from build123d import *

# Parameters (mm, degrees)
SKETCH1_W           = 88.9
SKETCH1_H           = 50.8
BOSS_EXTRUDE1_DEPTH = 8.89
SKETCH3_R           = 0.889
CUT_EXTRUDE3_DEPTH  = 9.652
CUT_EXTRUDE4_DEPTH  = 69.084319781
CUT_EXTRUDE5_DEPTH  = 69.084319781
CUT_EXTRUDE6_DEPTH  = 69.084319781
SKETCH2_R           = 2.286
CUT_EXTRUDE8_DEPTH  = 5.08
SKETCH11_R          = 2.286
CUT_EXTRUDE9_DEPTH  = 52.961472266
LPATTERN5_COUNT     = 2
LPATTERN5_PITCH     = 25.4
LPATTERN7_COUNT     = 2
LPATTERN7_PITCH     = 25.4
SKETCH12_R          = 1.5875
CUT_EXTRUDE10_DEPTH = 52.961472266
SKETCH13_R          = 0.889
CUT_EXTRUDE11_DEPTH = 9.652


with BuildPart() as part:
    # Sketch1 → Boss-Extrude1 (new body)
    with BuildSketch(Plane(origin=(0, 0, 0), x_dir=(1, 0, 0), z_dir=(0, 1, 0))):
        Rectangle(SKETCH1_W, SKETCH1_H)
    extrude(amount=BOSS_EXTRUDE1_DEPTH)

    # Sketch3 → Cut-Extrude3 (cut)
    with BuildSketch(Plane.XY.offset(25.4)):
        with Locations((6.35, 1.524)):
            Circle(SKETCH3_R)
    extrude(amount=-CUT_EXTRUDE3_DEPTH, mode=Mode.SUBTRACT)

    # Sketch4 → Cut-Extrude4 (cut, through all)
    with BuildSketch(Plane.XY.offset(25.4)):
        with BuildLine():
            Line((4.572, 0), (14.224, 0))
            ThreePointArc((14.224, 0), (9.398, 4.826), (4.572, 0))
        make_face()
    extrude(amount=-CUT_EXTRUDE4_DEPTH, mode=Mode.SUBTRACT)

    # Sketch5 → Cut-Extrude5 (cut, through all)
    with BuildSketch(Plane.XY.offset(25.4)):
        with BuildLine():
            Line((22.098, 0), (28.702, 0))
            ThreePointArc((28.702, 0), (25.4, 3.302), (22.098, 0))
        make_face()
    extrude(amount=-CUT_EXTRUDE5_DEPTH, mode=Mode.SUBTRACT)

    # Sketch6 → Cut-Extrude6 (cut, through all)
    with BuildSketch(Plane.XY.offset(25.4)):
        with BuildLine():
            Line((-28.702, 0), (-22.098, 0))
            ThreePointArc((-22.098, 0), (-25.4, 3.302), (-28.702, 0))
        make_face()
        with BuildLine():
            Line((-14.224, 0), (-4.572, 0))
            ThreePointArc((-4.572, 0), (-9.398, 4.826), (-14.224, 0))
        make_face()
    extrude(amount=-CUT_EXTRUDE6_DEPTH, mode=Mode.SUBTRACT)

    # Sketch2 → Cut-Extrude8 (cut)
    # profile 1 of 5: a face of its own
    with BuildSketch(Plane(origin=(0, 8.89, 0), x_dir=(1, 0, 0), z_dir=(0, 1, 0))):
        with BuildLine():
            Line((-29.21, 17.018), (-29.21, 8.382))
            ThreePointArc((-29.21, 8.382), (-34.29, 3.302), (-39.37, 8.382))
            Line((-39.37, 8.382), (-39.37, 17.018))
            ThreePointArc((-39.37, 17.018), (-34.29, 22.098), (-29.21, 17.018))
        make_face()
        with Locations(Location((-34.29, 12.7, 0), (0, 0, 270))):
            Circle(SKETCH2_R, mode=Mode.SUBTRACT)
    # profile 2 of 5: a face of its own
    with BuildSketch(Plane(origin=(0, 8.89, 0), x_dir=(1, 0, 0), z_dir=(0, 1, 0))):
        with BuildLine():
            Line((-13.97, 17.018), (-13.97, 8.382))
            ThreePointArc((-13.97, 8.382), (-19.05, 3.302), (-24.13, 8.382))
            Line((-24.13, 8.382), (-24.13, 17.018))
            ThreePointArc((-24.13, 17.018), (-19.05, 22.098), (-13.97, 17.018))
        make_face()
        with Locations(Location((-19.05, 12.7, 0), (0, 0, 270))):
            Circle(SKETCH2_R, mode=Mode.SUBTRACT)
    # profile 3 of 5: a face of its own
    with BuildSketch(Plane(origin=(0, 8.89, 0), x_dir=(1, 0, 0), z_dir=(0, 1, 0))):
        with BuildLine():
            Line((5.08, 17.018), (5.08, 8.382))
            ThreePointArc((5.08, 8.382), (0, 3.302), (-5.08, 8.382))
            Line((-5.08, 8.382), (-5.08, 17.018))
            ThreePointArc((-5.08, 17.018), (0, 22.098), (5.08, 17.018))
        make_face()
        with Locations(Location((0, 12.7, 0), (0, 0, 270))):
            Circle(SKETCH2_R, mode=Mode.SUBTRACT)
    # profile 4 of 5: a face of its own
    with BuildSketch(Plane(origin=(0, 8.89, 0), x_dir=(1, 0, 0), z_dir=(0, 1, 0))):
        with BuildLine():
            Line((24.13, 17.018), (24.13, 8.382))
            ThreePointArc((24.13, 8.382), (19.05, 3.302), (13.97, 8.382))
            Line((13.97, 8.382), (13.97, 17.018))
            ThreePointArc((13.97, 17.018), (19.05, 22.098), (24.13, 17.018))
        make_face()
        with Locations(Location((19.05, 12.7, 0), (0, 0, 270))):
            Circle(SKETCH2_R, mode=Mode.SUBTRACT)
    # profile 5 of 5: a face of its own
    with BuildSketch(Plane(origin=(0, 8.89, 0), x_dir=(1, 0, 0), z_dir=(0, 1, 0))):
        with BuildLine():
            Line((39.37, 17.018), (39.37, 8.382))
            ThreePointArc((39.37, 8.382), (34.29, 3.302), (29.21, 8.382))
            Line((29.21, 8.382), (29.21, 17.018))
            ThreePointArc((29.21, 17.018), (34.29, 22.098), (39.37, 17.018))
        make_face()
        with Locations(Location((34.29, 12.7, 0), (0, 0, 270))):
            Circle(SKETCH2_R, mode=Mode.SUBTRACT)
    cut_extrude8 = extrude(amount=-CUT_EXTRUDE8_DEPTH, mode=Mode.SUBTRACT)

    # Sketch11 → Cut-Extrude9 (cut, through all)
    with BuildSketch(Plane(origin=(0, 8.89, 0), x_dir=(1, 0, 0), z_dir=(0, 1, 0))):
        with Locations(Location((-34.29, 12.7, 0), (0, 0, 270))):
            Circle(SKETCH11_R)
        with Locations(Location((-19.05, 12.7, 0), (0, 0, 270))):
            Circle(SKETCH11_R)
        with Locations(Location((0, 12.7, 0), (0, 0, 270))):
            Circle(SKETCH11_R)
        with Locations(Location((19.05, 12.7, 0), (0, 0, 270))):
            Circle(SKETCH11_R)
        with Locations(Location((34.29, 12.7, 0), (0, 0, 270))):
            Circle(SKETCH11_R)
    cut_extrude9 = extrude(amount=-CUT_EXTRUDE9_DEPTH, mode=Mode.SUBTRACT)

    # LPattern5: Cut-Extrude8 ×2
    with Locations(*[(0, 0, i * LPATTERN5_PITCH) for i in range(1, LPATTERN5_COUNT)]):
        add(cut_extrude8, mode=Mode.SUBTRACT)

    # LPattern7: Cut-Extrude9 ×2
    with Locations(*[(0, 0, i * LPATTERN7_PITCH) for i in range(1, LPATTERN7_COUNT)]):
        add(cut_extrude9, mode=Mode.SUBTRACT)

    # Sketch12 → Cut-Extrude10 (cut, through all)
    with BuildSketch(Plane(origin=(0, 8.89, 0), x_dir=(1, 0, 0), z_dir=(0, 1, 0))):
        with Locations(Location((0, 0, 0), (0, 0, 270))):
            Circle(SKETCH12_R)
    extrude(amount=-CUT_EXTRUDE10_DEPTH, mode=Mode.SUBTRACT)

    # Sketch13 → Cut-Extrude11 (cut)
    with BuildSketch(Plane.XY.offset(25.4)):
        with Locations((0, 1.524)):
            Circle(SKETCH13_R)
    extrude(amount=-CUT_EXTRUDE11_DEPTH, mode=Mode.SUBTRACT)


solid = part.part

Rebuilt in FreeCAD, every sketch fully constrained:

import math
import FreeCAD as App
import Part
import Sketcher

V = App.Vector
Q = App.Units.Quantity

doc = App.newDocument("Part")
body = doc.addObject("PartDesign::Body", "Body")

sketch1 = body.newObject("Sketcher::SketchObject", "Sketch")
sketch1.AttachmentSupport = (doc.getObject("XZ_Plane"), [""])
sketch1.MapMode = "FlatFace"
sketch1.addGeometry(Part.LineSegment(V(-44, -25, 0), V(-44, 25, 0)), False)
sketch1.addGeometry(Part.LineSegment(V(-44, 25, 0), V(44, 25, 0)), False)
sketch1.addGeometry(Part.LineSegment(V(44, 25, 0), V(44, -25, 0)), False)
sketch1.addGeometry(Part.LineSegment(V(44, -25, 0), V(-44, -25, 0)), False)
sketch1.addConstraint(Sketcher.Constraint("Coincident", 0, 2, 1, 1))
sketch1.addConstraint(Sketcher.Constraint("Coincident", 1, 2, 2, 1))
sketch1.addConstraint(Sketcher.Constraint("Coincident", 2, 2, 3, 1))
sketch1.addConstraint(Sketcher.Constraint("Coincident", 3, 2, 0, 1))
sketch1.addConstraint(Sketcher.Constraint("Vertical", 0))
sketch1.addConstraint(Sketcher.Constraint("Horizontal", 1))
sketch1.addConstraint(Sketcher.Constraint("Vertical", 2))
sketch1.addConstraint(Sketcher.Constraint("Horizontal", 3))
sketch1.addConstraint(Sketcher.Constraint("Symmetric", 0, 2, 2, 2, -1, 1))
sketch1.addConstraint(Sketcher.Constraint("DistanceY", 0, 1, 0, 2, Q("2 in")))
sketch1.addConstraint(Sketcher.Constraint("DistanceX", 1, 1, 1, 2, Q("3.5 in")))
pad1 = body.newObject("PartDesign::Pad", "Pad")
pad1.Profile = sketch1
pad1.Length = Q("0.35 in")
pad1.Reversed = True

sketch2 = body.newObject("Sketcher::SketchObject", "Sketch001")
sketch2.AttachmentSupport = (doc.getObject("XY_Plane"), [""])
sketch2.MapMode = "FlatFace"
sketch2.AttachmentOffset = App.Placement(V(0, 0, 1 * 25.4), App.Rotation())
sketch2.addGeometry(Part.Circle(V(6.3, 1.5, 0), V(0, 0, 1), 0.9), False)
sketch2.addConstraint(Sketcher.Constraint("Diameter", 0, Q("0.07 in")))
sketch2.addConstraint(Sketcher.Constraint("DistanceX", -1, 1, 0, 3, Q("0.25 in")))
sketch2.addConstraint(Sketcher.Constraint("DistanceY", -1, 1, 0, 3, Q("0.06 in")))
pocket1 = body.newObject("PartDesign::Pocket", "Pocket")
pocket1.Profile = sketch2
pocket1.Length = Q("0.38 in")

sketch3 = body.newObject("Sketcher::SketchObject", "Sketch002")
sketch3.AttachmentSupport = (doc.getObject("XY_Plane"), [""])
sketch3.MapMode = "FlatFace"
sketch3.AttachmentOffset = App.Placement(V(0, 0, 1 * 25.4), App.Rotation())
sketch3.addGeometry(Part.LineSegment(V(4.6, 0, 0), V(14.2, 0, 0)), False)
sketch3.addGeometry(Part.ArcOfCircle(Part.Circle(V(9.4, 0, 0), V(0, 0, 1), 4.8), math.radians(0), math.radians(180)), False)
sketch3.addConstraint(Sketcher.Constraint("Coincident", 0, 1, 1, 2))
sketch3.addConstraint(Sketcher.Constraint("Coincident", 1, 1, 0, 2))
sketch3.addConstraint(Sketcher.Constraint("Horizontal", 0))
sketch3.addConstraint(Sketcher.Constraint("PointOnObject", 1, 3, -1))
sketch3.addConstraint(Sketcher.Constraint("PointOnObject", 0, 1, -1))
sketch3.addConstraint(Sketcher.Constraint("Radius", 1, Q("0.19 in")))
sketch3.addConstraint(Sketcher.Constraint("DistanceX", -1, 1, 1, 3, Q("0.37 in")))
pocket2 = body.newObject("PartDesign::Pocket", "Pocket001")
pocket2.Profile = sketch3
pocket2.Type = "ThroughAll"

sketch4 = body.newObject("Sketcher::SketchObject", "Sketch003")
sketch4.AttachmentSupport = (doc.getObject("XY_Plane"), [""])
sketch4.MapMode = "FlatFace"
sketch4.AttachmentOffset = App.Placement(V(0, 0, 1 * 25.4), App.Rotation())
sketch4.addGeometry(Part.LineSegment(V(22.1, 0, 0), V(28.7, 0, 0)), False)
sketch4.addGeometry(Part.ArcOfCircle(Part.Circle(V(25.4, 0, 0), V(0, 0, 1), 3.3), math.radians(0), math.radians(180)), False)
sketch4.addConstraint(Sketcher.Constraint("Coincident", 0, 1, 1, 2))
sketch4.addConstraint(Sketcher.Constraint("Coincident", 1, 1, 0, 2))
sketch4.addConstraint(Sketcher.Constraint("Horizontal", 0))
sketch4.addConstraint(Sketcher.Constraint("PointOnObject", 1, 3, -1))
sketch4.addConstraint(Sketcher.Constraint("PointOnObject", 0, 1, -1))
sketch4.addConstraint(Sketcher.Constraint("Radius", 1, Q("0.13 in")))
sketch4.addConstraint(Sketcher.Constraint("DistanceX", -1, 1, 1, 3, Q("1 in")))
pocket3 = body.newObject("PartDesign::Pocket", "Pocket002")
pocket3.Profile = sketch4
pocket3.Type = "ThroughAll"

sketch5 = body.newObject("Sketcher::SketchObject", "Sketch004")
sketch5.AttachmentSupport = (doc.getObject("XY_Plane"), [""])
sketch5.MapMode = "FlatFace"
sketch5.AttachmentOffset = App.Placement(V(0, 0, 1 * 25.4), App.Rotation())
sketch5.addGeometry(Part.LineSegment(V(-28.7, 0, 0), V(-22.1, 0, 0)), False)
sketch5.addGeometry(Part.ArcOfCircle(Part.Circle(V(-25.4, 0, 0), V(0, 0, 1), 3.3), math.radians(0), math.radians(180)), False)
sketch5.addGeometry(Part.LineSegment(V(-14.2, 0, 0), V(-4.6, 0, 0)), False)
sketch5.addGeometry(Part.ArcOfCircle(Part.Circle(V(-9.4, 0, 0), V(0, 0, 1), 4.8), math.radians(0), math.radians(180)), False)
sketch5.addConstraint(Sketcher.Constraint("Coincident", 0, 1, 1, 2))
sketch5.addConstraint(Sketcher.Constraint("Coincident", 1, 1, 0, 2))
sketch5.addConstraint(Sketcher.Constraint("Coincident", 2, 1, 3, 2))
sketch5.addConstraint(Sketcher.Constraint("Coincident", 3, 1, 2, 2))
sketch5.addConstraint(Sketcher.Constraint("Horizontal", 0))
sketch5.addConstraint(Sketcher.Constraint("Horizontal", 2))
sketch5.addConstraint(Sketcher.Constraint("PointOnObject", 1, 3, -1))
sketch5.addConstraint(Sketcher.Constraint("PointOnObject", 3, 3, -1))
sketch5.addConstraint(Sketcher.Constraint("PointOnObject", 0, 1, -1))
sketch5.addConstraint(Sketcher.Constraint("PointOnObject", 2, 1, -1))
sketch5.addConstraint(Sketcher.Constraint("Radius", 1, Q("0.13 in")))
sketch5.addConstraint(Sketcher.Constraint("Radius", 3, Q("0.19 in")))
sketch5.addConstraint(Sketcher.Constraint("DistanceX", 1, 3, -1, 1, Q("1 in")))
sketch5.addConstraint(Sketcher.Constraint("DistanceX", 1, 1, 3, 3, Q("0.5 in")))
pocket4 = body.newObject("PartDesign::Pocket", "Pocket003")
pocket4.Profile = sketch5
pocket4.Type = "ThroughAll"

sketch6 = body.newObject("Sketcher::SketchObject", "Sketch005")
sketch6.AttachmentSupport = (doc.getObject("XZ_Plane"), [""])
sketch6.MapMode = "FlatFace"
sketch6.AttachmentOffset = App.Placement(V(0, 0, -0.35 * 25.4), App.Rotation())
sketch6.addGeometry(Part.LineSegment(V(-29.2, -8.4, 0), V(-29.2, -17, 0)), False)
sketch6.addGeometry(Part.ArcOfCircle(Part.Circle(V(-34.3, -17, 0), V(0, 0, 1), 5.1), math.radians(180), math.radians(360)), False)
sketch6.addGeometry(Part.LineSegment(V(-39.4, -17, 0), V(-39.4, -8.4, 0)), False)
sketch6.addGeometry(Part.ArcOfCircle(Part.Circle(V(-34.3, -8.4, 0), V(0, 0, 1), 5.1), math.radians(0), math.radians(180)), False)
sketch6.addGeometry(Part.Circle(V(-34.3, -12.7, 0), V(0, 0, 1), 2.3), False)
sketch6.addGeometry(Part.LineSegment(V(-14, -8.4, 0), V(-14, -17, 0)), False)
sketch6.addGeometry(Part.ArcOfCircle(Part.Circle(V(-19.1, -17, 0), V(0, 0, 1), 5.1), math.radians(180), math.radians(360)), False)
sketch6.addGeometry(Part.LineSegment(V(-24.1, -17, 0), V(-24.1, -8.4, 0)), False)
sketch6.addGeometry(Part.ArcOfCircle(Part.Circle(V(-19.1, -8.4, 0), V(0, 0, 1), 5.1), math.radians(0), math.radians(180)), False)
sketch6.addGeometry(Part.Circle(V(-19.1, -12.7, 0), V(0, 0, 1), 2.3), False)
sketch6.addGeometry(Part.LineSegment(V(5.1, -8.4, 0), V(5.1, -17, 0)), False)
sketch6.addGeometry(Part.ArcOfCircle(Part.Circle(V(0, -17, 0), V(0, 0, 1), 5.1), math.radians(180), math.radians(360)), False)
sketch6.addGeometry(Part.LineSegment(V(-5.1, -17, 0), V(-5.1, -8.4, 0)), False)
sketch6.addGeometry(Part.ArcOfCircle(Part.Circle(V(0, -8.4, 0), V(0, 0, 1), 5.1), math.radians(0), math.radians(180)), False)
sketch6.addGeometry(Part.Circle(V(0, -12.7, 0), V(0, 0, 1), 2.3), False)
sketch6.addGeometry(Part.LineSegment(V(24.1, -8.4, 0), V(24.1, -17, 0)), False)
sketch6.addGeometry(Part.ArcOfCircle(Part.Circle(V(19.1, -17, 0), V(0, 0, 1), 5.1), math.radians(180), math.radians(360)), False)
sketch6.addGeometry(Part.LineSegment(V(14, -17, 0), V(14, -8.4, 0)), False)
sketch6.addGeometry(Part.ArcOfCircle(Part.Circle(V(19.1, -8.4, 0), V(0, 0, 1), 5.1), math.radians(0), math.radians(180)), False)
sketch6.addGeometry(Part.Circle(V(19.1, -12.7, 0), V(0, 0, 1), 2.3), False)
sketch6.addGeometry(Part.LineSegment(V(39.4, -8.4, 0), V(39.4, -17, 0)), False)
sketch6.addGeometry(Part.ArcOfCircle(Part.Circle(V(34.3, -17, 0), V(0, 0, 1), 5.1), math.radians(180), math.radians(360)), False)
sketch6.addGeometry(Part.LineSegment(V(29.2, -17, 0), V(29.2, -8.4, 0)), False)
sketch6.addGeometry(Part.ArcOfCircle(Part.Circle(V(34.3, -8.4, 0), V(0, 0, 1), 5.1), math.radians(0), math.radians(180)), False)
sketch6.addGeometry(Part.Circle(V(34.3, -12.7, 0), V(0, 0, 1), 2.3), False)
sketch6.addConstraint(Sketcher.Constraint("Tangent", 0, 2, 1, 2))
sketch6.addConstraint(Sketcher.Constraint("Tangent", 1, 1, 2, 1))
sketch6.addConstraint(Sketcher.Constraint("Tangent", 2, 2, 3, 2))
sketch6.addConstraint(Sketcher.Constraint("Tangent", 3, 1, 0, 1))
sketch6.addConstraint(Sketcher.Constraint("Tangent", 5, 2, 6, 2))
sketch6.addConstraint(Sketcher.Constraint("Tangent", 6, 1, 7, 1))
sketch6.addConstraint(Sketcher.Constraint("Tangent", 7, 2, 8, 2))
sketch6.addConstraint(Sketcher.Constraint("Tangent", 8, 1, 5, 1))
sketch6.addConstraint(Sketcher.Constraint("Tangent", 10, 2, 11, 2))
sketch6.addConstraint(Sketcher.Constraint("Tangent", 11, 1, 12, 1))
sketch6.addConstraint(Sketcher.Constraint("Tangent", 12, 2, 13, 2))
sketch6.addConstraint(Sketcher.Constraint("Tangent", 13, 1, 10, 1))
sketch6.addConstraint(Sketcher.Constraint("Tangent", 15, 2, 16, 2))
sketch6.addConstraint(Sketcher.Constraint("Tangent", 16, 1, 17, 1))
sketch6.addConstraint(Sketcher.Constraint("Tangent", 17, 2, 18, 2))
sketch6.addConstraint(Sketcher.Constraint("Tangent", 18, 1, 15, 1))
sketch6.addConstraint(Sketcher.Constraint("Tangent", 20, 2, 21, 2))
sketch6.addConstraint(Sketcher.Constraint("Tangent", 21, 1, 22, 1))
sketch6.addConstraint(Sketcher.Constraint("Tangent", 22, 2, 23, 2))
sketch6.addConstraint(Sketcher.Constraint("Tangent", 23, 1, 20, 1))
sketch6.addConstraint(Sketcher.Constraint("Vertical", 0))
sketch6.addConstraint(Sketcher.Constraint("Vertical", 2))
sketch6.addConstraint(Sketcher.Constraint("Vertical", 5))
sketch6.addConstraint(Sketcher.Constraint("Vertical", 7))
sketch6.addConstraint(Sketcher.Constraint("Vertical", 10))
sketch6.addConstraint(Sketcher.Constraint("Vertical", 12))
sketch6.addConstraint(Sketcher.Constraint("Vertical", 15))
sketch6.addConstraint(Sketcher.Constraint("Vertical", 17))
sketch6.addConstraint(Sketcher.Constraint("Vertical", 20))
sketch6.addConstraint(Sketcher.Constraint("Vertical", 22))
sketch6.addConstraint(Sketcher.Constraint("Equal", 3, 6))
sketch6.addConstraint(Sketcher.Constraint("Equal", 4, 9))
sketch6.addConstraint(Sketcher.Constraint("Equal", 8, 11))
sketch6.addConstraint(Sketcher.Constraint("Equal", 9, 14))
sketch6.addConstraint(Sketcher.Constraint("Equal", 13, 16))
sketch6.addConstraint(Sketcher.Constraint("Equal", 14, 19))
sketch6.addConstraint(Sketcher.Constraint("Equal", 18, 21))
sketch6.addConstraint(Sketcher.Constraint("Equal", 19, 24))
sketch6.addConstraint(Sketcher.Constraint("Symmetric", 6, 3, 16, 3, -2))
sketch6.addConstraint(Sketcher.Constraint("Symmetric", 9, 3, 19, 3, -2))
sketch6.addConstraint(Sketcher.Constraint("Symmetric", 1, 3, 21, 3, -2))
sketch6.addConstraint(Sketcher.Constraint("Symmetric", 4, 3, 24, 3, -2))
sketch6.addConstraint(Sketcher.Constraint("PointOnObject", 11, 3, -2))
sketch6.addConstraint(Sketcher.Constraint("PointOnObject", 14, 3, -2))
sketch6.addConstraint(Sketcher.Constraint("Horizontal", 1, 3, 6, 3))
sketch6.addConstraint(Sketcher.Constraint("Horizontal", 3, 3, 8, 3))
sketch6.addConstraint(Sketcher.Constraint("Horizontal", 4, 3, 9, 3))
sketch6.addConstraint(Sketcher.Constraint("Horizontal", 6, 3, 11, 3))
sketch6.addConstraint(Sketcher.Constraint("Horizontal", 8, 3, 13, 3))
sketch6.addConstraint(Sketcher.Constraint("Horizontal", 9, 3, 14, 3))
sketch6.addConstraint(Sketcher.Constraint("Horizontal", 13, 3, 18, 3))
sketch6.addConstraint(Sketcher.Constraint("Horizontal", 18, 3, 23, 3))
sketch6.addConstraint(Sketcher.Constraint("Vertical", 3, 3, 4, 3))
sketch6.addConstraint(Sketcher.Constraint("Vertical", 8, 3, 9, 3))
sketch6.addConstraint(Sketcher.Constraint("Radius", 1, Q("0.2 in")))
sketch6.addConstraint(Sketcher.Constraint("Diameter", 4, Q("0.18 in")))
sketch6.addConstraint(Sketcher.Constraint("DistanceY", 0, 2, 0, 1, Q("0.34 in")))
sketch6.addConstraint(Sketcher.Constraint("DistanceY", 4, 3, -1, 1, Q("0.5 in")))
sketch6.addConstraint(Sketcher.Constraint("DistanceX", 1, 3, 6, 3, Q("0.6 in")))
sketch6.addConstraint(Sketcher.Constraint("DistanceX", 6, 3, 16, 3, Q("1.5 in")))
sketch6.addConstraint(Sketcher.Constraint("DistanceY", 1, 3, -1, 1, Q("0.67 in")))
pocket5 = body.newObject("PartDesign::Pocket", "Pocket004")
pocket5.Profile = sketch6
pocket5.Length = Q("0.2 in")
pocket5.Reversed = True

sketch7 = body.newObject("Sketcher::SketchObject", "Sketch006")
sketch7.AttachmentSupport = (doc.getObject("XZ_Plane"), [""])
sketch7.MapMode = "FlatFace"
sketch7.AttachmentOffset = App.Placement(V(0, 0, -0.35 * 25.4), App.Rotation())
sketch7.addGeometry(Part.Circle(V(-34.3, -12.7, 0), V(0, 0, 1), 2.3), False)
sketch7.addGeometry(Part.Circle(V(-19.1, -12.7, 0), V(0, 0, 1), 2.3), False)
sketch7.addGeometry(Part.Circle(V(0, -12.7, 0), V(0, 0, 1), 2.3), False)
sketch7.addGeometry(Part.Circle(V(19.1, -12.7, 0), V(0, 0, 1), 2.3), False)
sketch7.addGeometry(Part.Circle(V(34.3, -12.7, 0), V(0, 0, 1), 2.3), False)
sketch7.addConstraint(Sketcher.Constraint("Equal", 0, 1))
sketch7.addConstraint(Sketcher.Constraint("Equal", 1, 2))
sketch7.addConstraint(Sketcher.Constraint("Equal", 2, 3))
sketch7.addConstraint(Sketcher.Constraint("Equal", 3, 4))
sketch7.addConstraint(Sketcher.Constraint("Symmetric", 1, 3, 3, 3, -2))
sketch7.addConstraint(Sketcher.Constraint("Symmetric", 0, 3, 4, 3, -2))
sketch7.addConstraint(Sketcher.Constraint("PointOnObject", 2, 3, -2))
sketch7.addConstraint(Sketcher.Constraint("Horizontal", 0, 3, 1, 3))
sketch7.addConstraint(Sketcher.Constraint("Horizontal", 1, 3, 2, 3))
sketch7.addConstraint(Sketcher.Constraint("Diameter", 0, Q("0.18 in")))
sketch7.addConstraint(Sketcher.Constraint("DistanceY", 0, 3, -1, 1, Q("0.5 in")))
sketch7.addConstraint(Sketcher.Constraint("DistanceX", 0, 3, 1, 3, Q("0.6 in")))
sketch7.addConstraint(Sketcher.Constraint("DistanceX", 1, 3, 3, 3, Q("1.5 in")))
pocket6 = body.newObject("PartDesign::Pocket", "Pocket005")
pocket6.Profile = sketch7
pocket6.Type = "ThroughAll"
pocket6.Reversed = True
doc.recompute()

linearpattern = body.newObject("PartDesign::LinearPattern", "LinearPattern")
linearpattern.Originals = [pocket5]
linearpattern.Direction = (doc.getObject("Z_Axis"), [""])
linearpattern.Mode = "offset"
linearpattern.Offset = Q("1 in")
linearpattern.Occurrences = 2
body.Tip = linearpattern
doc.recompute()

linearpattern2 = body.newObject("PartDesign::LinearPattern", "LinearPattern001")
linearpattern2.Originals = [pocket6]
linearpattern2.Direction = (doc.getObject("Z_Axis"), [""])
linearpattern2.Mode = "offset"
linearpattern2.Offset = Q("1 in")
linearpattern2.Occurrences = 2
body.Tip = linearpattern2

sketch8 = body.newObject("Sketcher::SketchObject", "Sketch007")
sketch8.AttachmentSupport = (doc.getObject("XZ_Plane"), [""])
sketch8.MapMode = "FlatFace"
sketch8.AttachmentOffset = App.Placement(V(0, 0, -0.35 * 25.4), App.Rotation())
sketch8.addGeometry(Part.Circle(V(0, 0, 0), V(0, 0, 1), 1.6), False)
sketch8.addConstraint(Sketcher.Constraint("Coincident", 0, 3, -1, 1))
sketch8.addConstraint(Sketcher.Constraint("Diameter", 0, Q("0.125 in")))
pocket7 = body.newObject("PartDesign::Pocket", "Pocket006")
pocket7.Profile = sketch8
pocket7.Type = "ThroughAll"
pocket7.Reversed = True

sketch9 = body.newObject("Sketcher::SketchObject", "Sketch008")
sketch9.AttachmentSupport = (doc.getObject("XY_Plane"), [""])
sketch9.MapMode = "FlatFace"
sketch9.AttachmentOffset = App.Placement(V(0, 0, 1 * 25.4), App.Rotation())
sketch9.addGeometry(Part.Circle(V(0, 1.5, 0), V(0, 0, 1), 0.9), False)
sketch9.addConstraint(Sketcher.Constraint("PointOnObject", 0, 3, -2))
sketch9.addConstraint(Sketcher.Constraint("Diameter", 0, Q("0.07 in")))
sketch9.addConstraint(Sketcher.Constraint("DistanceY", -1, 1, 0, 3, Q("0.06 in")))
pocket8 = body.newObject("PartDesign::Pocket", "Pocket007")
pocket8.Profile = sketch9
pocket8.Length = Q("0.38 in")

doc.recompute()
